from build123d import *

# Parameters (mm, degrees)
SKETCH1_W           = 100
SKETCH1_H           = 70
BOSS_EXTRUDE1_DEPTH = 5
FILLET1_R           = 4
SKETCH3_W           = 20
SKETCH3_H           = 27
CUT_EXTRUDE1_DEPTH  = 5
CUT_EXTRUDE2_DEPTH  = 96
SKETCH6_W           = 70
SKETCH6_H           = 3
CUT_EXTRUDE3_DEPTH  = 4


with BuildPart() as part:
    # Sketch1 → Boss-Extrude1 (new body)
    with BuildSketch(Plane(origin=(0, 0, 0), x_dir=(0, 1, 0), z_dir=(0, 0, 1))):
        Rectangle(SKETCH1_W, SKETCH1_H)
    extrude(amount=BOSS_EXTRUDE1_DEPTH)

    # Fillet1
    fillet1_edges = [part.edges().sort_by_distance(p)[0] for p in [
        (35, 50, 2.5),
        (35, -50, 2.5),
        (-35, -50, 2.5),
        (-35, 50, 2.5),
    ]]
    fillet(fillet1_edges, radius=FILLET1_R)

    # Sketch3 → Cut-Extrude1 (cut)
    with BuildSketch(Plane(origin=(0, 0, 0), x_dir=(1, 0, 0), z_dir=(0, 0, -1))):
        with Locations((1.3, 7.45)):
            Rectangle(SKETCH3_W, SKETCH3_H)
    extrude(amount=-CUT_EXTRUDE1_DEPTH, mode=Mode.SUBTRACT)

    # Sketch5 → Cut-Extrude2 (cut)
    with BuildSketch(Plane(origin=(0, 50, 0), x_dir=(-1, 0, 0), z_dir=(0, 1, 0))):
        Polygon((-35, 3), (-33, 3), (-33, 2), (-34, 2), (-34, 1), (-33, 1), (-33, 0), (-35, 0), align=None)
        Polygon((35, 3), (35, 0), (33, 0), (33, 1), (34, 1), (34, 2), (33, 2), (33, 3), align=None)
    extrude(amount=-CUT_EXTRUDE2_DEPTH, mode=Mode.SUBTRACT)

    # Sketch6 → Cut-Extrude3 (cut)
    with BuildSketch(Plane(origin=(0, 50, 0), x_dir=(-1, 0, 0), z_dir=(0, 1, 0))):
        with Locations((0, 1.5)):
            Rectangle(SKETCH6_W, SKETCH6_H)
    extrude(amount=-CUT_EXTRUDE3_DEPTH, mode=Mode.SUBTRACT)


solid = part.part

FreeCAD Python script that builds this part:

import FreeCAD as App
import Part
import Sketcher
from FreeCAD import Vector
Q = App.Units.Quantity


def edges_at(feature, points):
    """Names of the edges that pass closest to the given points."""
    edges = feature.Shape.Edges
    near = lambda p: min(range(len(edges)), key=lambda i: edges[i].distToShape(Part.Vertex(*p))[0])
    return sorted({f"Edge{near(p) + 1}" for p in points})


def add_polygon(sketch, points):
    """Adds a closed chain of lines whose ends are joined by coincident constraints."""
    first, n = sketch.GeometryCount, len(points)
    for a, b in zip(points, points[1:] + points[:1]):
        sketch.addGeometry(Part.LineSegment(App.Vector(*a, 0), App.Vector(*b, 0)), False)
    for i in range(n):
        sketch.addConstraint(Sketcher.Constraint("Coincident", first + i, 2, first + (i + 1) % n, 1))

doc = App.newDocument("Part")
body = doc.addObject("PartDesign::Body", "Body")

# Sketch on XY plane
sketch1 = doc.addObject("Sketcher::SketchObject", "Sketch")
body.addObject(sketch1)
sketch1.AttachmentSupport = (doc.XY_Plane, [""])
sketch1.MapMode = "FlatFace"
add_polygon(sketch1, [(-35, -50), (35, -50), (35, 50), (-35, 50)])  # lines 0-3
sketch1.addConstraint([
    Sketcher.Constraint("Horizontal", 0),
    Sketcher.Constraint("Vertical", 1),
    Sketcher.Constraint("Horizontal", 2),
    Sketcher.Constraint("Vertical", 3),
    Sketcher.Constraint("Symmetric", 0, 2, 2, 2, -1, 1),
    Sketcher.Constraint("DistanceX", 0, 1, 0, 2, Q("70 mm")),
    Sketcher.Constraint("DistanceY", 1, 1, 1, 2, Q("100 mm")),
])
pad1 = doc.addObject("PartDesign::Pad", "Pad")
body.addObject(pad1)
pad1.Profile = sketch1
pad1.Length = 5
doc.recompute()

fillet = doc.addObject("PartDesign::Fillet", "Fillet")
body.addObject(fillet)
fillet.Base = (pad1, edges_at(pad1, [
    (35, 50, 2.5),
    (35, -50, 2.5),
    (-35, -50, 2.5),
    (-35, 50, 2.5),
]))
fillet.Radius = 4

# Sketch on XY plane
sketch2 = doc.addObject("Sketcher::SketchObject", "Sketch001")
body.addObject(sketch2)
sketch2.AttachmentSupport = (doc.XY_Plane, [""])
sketch2.MapMode = "FlatFace"
add_polygon(sketch2, [(-8.7, -20.95), (-8.7, 6.05), (11.3, 6.05), (11.3, -20.95)])  # lines 0-3
sketch2.addConstraint([
    Sketcher.Constraint("Vertical", 0),
    Sketcher.Constraint("Horizontal", 1),
    Sketcher.Constraint("Vertical", 2),
    Sketcher.Constraint("Horizontal", 3),
    Sketcher.Constraint("DistanceX", 1, 1, 1, 2, Q("20 mm")),
    Sketcher.Constraint("DistanceY", 0, 1, 0, 2, Q("27 mm")),
    Sketcher.Constraint("DistanceX", 0, 2, -1, 1, Q("8.7 mm")),
    Sketcher.Constraint("DistanceY", -1, 1, 0, 2, Q("6.05 mm")),
])
pocket1 = doc.addObject("PartDesign::Pocket", "Pocket")
body.addObject(pocket1)
pocket1.Profile = sketch2
pocket1.Length = 5
pocket1.Reversed = True

# Sketch on XZ plane
sketch3 = doc.addObject("Sketcher::SketchObject", "Sketch002")
body.addObject(sketch3)
sketch3.AttachmentSupport = (doc.XZ_Plane, [""])
sketch3.MapMode = "FlatFace"
sketch3.AttachmentOffset = App.Placement(Vector(0, 0, -50), App.Rotation())
add_polygon(sketch3, [(33, 3), (35, 3), (35, 0), (33, 0), (33, 1), (34, 1), (34, 2), (33, 2)])  # lines 0-7
add_polygon(sketch3, [(-35, 0), (-35, 3), (-33, 3), (-33, 2), (-34, 2), (-34, 1), (-33, 1), (-33, 0)])  # lines 8-15
sketch3.addConstraint([
    Sketcher.Constraint("Horizontal", 0),
    Sketcher.Constraint("Vertical", 1),
    Sketcher.Constraint("Horizontal", 2),
    Sketcher.Constraint("Vertical", 3),
    Sketcher.Constraint("Horizontal", 4),
    Sketcher.Constraint("Vertical", 5),
    Sketcher.Constraint("Horizontal", 6),
    Sketcher.Constraint("Vertical", 7),
    Sketcher.Constraint("Vertical", 8),
    Sketcher.Constraint("Horizontal", 9),
    Sketcher.Constraint("Vertical", 10),
    Sketcher.Constraint("Horizontal", 11),
    Sketcher.Constraint("Vertical", 12),
    Sketcher.Constraint("Horizontal", 13),
    Sketcher.Constraint("Vertical", 14),
    Sketcher.Constraint("Horizontal", 15),
    Sketcher.Constraint("Symmetric", 2, 2, 14, 2, -1, 1),
    Sketcher.Constraint("Symmetric", 0, 2, 8, 2, -2),
    Sketcher.Constraint("Symmetric", 6, 2, 10, 2, -2),
    Sketcher.Constraint("Symmetric", 4, 2, 12, 2, -2),
    Sketcher.Constraint("PointOnObject", 1, 2, -1),
    Sketcher.Constraint("Vertical", 3, 2, 6, 2),
    Sketcher.Constraint("Equal", 13, 3),
    Sketcher.Constraint("Equal", 3, 5),
    Sketcher.Constraint("Equal", 5, 7),
    Sketcher.Constraint("DistanceX", 0, 1, 0, 2, Q("2 mm")),
    Sketcher.Constraint("DistanceX", 4, 1, 4, 2, Q("1 mm")),
    Sketcher.Constraint("DistanceX", -1, 1, 0, 2, Q("35 mm")),
])
pocket2 = doc.addObject("PartDesign::Pocket", "Pocket001")
body.addObject(pocket2)
pocket2.Profile = sketch3
pocket2.Length = 96
pocket2.Reversed = True

# Sketch on XZ plane
sketch4 = doc.addObject("Sketcher::SketchObject", "Sketch003")
body.addObject(sketch4)
sketch4.AttachmentSupport = (doc.XZ_Plane, [""])
sketch4.MapMode = "FlatFace"
sketch4.AttachmentOffset = App.Placement(Vector(0, 0, -50), App.Rotation())
add_polygon(sketch4, [(35, 3), (35, 0), (-35, 0), (-35, 3)])  # lines 0-3
sketch4.addConstraint([
    Sketcher.Constraint("Vertical", 0),
    Sketcher.Constraint("Horizontal", 1),
    Sketcher.Constraint("Vertical", 2),
    Sketcher.Constraint("Horizontal", 3),
    Sketcher.Constraint("Symmetric", 0, 2, 1, 2, -1, 1),
    Sketcher.Constraint("DistanceX", 1, 2, 1, 1, Q("70 mm")),
    Sketcher.Constraint("DistanceY", 0, 2, 0, 1, Q("3 mm")),
])
pocket3 = doc.addObject("PartDesign::Pocket", "Pocket002")
body.addObject(pocket3)
pocket3.Profile = sketch4
pocket3.Length = 4
pocket3.Reversed = True

doc.recompute()
